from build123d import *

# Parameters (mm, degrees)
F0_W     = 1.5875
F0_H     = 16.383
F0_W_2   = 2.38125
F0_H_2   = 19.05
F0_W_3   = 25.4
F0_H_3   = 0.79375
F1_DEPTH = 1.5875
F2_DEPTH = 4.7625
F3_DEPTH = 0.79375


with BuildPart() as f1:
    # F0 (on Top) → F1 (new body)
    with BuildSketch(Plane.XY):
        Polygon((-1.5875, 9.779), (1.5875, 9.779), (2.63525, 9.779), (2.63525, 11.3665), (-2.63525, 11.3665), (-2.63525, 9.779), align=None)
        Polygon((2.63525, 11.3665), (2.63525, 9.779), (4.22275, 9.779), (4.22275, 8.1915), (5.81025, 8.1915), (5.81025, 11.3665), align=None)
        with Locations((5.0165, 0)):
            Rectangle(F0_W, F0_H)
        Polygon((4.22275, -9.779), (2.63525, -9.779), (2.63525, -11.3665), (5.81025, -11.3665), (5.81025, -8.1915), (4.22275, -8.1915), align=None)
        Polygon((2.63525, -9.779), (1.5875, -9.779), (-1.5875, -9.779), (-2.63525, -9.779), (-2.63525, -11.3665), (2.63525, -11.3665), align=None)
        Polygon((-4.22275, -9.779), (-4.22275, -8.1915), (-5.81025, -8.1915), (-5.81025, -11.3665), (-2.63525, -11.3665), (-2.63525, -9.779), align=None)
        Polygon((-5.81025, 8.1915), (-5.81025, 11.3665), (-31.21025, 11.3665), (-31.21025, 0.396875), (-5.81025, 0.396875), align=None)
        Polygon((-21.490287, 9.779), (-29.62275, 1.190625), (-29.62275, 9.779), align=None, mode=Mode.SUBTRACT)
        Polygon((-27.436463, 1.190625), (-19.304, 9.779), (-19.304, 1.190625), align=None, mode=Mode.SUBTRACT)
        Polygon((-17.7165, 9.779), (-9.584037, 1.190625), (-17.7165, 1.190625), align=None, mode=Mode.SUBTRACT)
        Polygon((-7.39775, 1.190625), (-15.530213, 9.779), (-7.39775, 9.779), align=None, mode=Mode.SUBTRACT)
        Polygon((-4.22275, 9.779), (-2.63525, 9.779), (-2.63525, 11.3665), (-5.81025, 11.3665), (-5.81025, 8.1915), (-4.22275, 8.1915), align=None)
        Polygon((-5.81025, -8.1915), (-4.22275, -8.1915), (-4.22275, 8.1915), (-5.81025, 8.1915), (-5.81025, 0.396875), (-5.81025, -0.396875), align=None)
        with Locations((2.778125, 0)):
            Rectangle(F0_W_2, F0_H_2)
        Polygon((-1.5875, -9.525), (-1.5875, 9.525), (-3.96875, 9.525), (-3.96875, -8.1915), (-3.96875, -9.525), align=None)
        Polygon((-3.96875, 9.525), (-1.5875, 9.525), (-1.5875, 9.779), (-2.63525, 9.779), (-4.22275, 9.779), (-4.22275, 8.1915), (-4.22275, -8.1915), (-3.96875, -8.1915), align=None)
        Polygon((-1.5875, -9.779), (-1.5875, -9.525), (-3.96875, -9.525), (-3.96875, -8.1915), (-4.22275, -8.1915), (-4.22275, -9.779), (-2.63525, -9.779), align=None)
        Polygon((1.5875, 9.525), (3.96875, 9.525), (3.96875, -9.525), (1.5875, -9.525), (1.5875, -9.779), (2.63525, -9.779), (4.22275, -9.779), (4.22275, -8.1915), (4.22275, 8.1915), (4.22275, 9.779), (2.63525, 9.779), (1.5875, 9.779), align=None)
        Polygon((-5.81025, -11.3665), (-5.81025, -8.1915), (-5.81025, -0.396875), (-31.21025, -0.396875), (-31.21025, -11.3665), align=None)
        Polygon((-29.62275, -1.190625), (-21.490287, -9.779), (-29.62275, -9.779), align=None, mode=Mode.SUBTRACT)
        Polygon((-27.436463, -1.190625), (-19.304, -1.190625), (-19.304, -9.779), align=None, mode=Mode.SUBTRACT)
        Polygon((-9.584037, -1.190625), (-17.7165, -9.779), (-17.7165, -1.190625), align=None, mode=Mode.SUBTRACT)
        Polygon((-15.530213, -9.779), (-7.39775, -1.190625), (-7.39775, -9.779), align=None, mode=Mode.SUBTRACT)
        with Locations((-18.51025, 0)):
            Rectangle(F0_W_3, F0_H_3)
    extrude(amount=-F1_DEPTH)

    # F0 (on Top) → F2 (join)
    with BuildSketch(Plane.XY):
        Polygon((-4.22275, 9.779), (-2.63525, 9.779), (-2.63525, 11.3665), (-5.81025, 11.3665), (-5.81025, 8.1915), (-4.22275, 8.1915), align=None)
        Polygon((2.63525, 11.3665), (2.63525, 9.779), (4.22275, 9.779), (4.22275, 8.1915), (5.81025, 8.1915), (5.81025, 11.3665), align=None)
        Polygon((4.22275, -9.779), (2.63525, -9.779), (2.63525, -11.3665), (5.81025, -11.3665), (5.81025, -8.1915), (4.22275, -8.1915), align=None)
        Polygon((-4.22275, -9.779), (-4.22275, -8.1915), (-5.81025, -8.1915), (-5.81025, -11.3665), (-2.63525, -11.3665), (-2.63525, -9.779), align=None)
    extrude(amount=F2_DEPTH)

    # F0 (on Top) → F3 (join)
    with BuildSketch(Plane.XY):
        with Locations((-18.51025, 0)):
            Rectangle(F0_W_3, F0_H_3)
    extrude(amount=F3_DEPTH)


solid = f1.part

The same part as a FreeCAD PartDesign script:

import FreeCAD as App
import Part
import Sketcher

V = App.Vector
Q = App.Units.Quantity

doc = App.newDocument("Part")
params = doc.addObject("Spreadsheet::Sheet", "Params")
for row, (alias, value) in enumerate([
    ("sketch1_height", "0.77 in"),
    ("sketch1_width", "0.125 in"),
    ("sketch1_height2", "0.895 in"),
    ("pad1_length", "0.0625 in"),
    ("sketch2_width", "0.0625 in"),
    ("pad2_length", "0.1875 in"),
    ("sketch3_width", "1 in"),
    ("sketch3_height", "0.03125 in"),
    ("pad3_length", "0.03125 in"),
], start=1):
    params.set(f"A{row}", alias)
    params.set(f"B{row}", "=" + value)
    params.setAlias(f"B{row}", alias)

body = doc.addObject("PartDesign::Body", "Body")

# Sketch on XY plane
sketch1 = doc.addObject("Sketcher::SketchObject", "Sketch")
body.addObject(sketch1)
sketch1.AttachmentSupport = (doc.XY_Plane, [""])
sketch1.MapMode = "FlatFace"
sketch1.addGeometry([
    Part.LineSegment(V(5.81025, -11.3665, 0), V(5.81025, 11.3665, 0)),  # 0
    Part.LineSegment(V(5.81025, 11.3665, 0), V(-31.21025, 11.3665, 0)),  # 1
    Part.LineSegment(V(-31.21025, 11.3665, 0), V(-31.21025, -11.3665, 0)),  # 2
    Part.LineSegment(V(-31.21025, -11.3665, 0), V(5.81025, -11.3665, 0)),  # 3
    Part.LineSegment(V(-29.62275, -9.779, 0), V(-29.62275, -1.190625, 0)),  # 4
    Part.LineSegment(V(-29.62275, -1.190625, 0), V(-21.490287, -9.779, 0)),  # 5
    Part.LineSegment(V(-21.490287, -9.779, 0), V(-29.62275, -9.779, 0)),  # 6
    Part.LineSegment(V(-19.304, -9.779, 0), V(-27.436463, -1.190625, 0)),  # 7
    Part.LineSegment(V(-27.436463, -1.190625, 0), V(-19.304, -1.190625, 0)),  # 8
    Part.LineSegment(V(-19.304, -1.190625, 0), V(-19.304, -9.779, 0)),  # 9
    Part.LineSegment(V(-17.7165, -1.190625, 0), V(-9.584037, -1.190625, 0)),  # 10
    Part.LineSegment(V(-9.584037, -1.190625, 0), V(-17.7165, -9.779, 0)),  # 11
    Part.LineSegment(V(-17.7165, -9.779, 0), V(-17.7165, -1.190625, 0)),  # 12
    Part.LineSegment(V(-7.39775, -9.779, 0), V(-15.530213, -9.779, 0)),  # 13
    Part.LineSegment(V(-15.530213, -9.779, 0), V(-7.39775, -1.190625, 0)),  # 14
    Part.LineSegment(V(-7.39775, -1.190625, 0), V(-7.39775, -9.779, 0)),  # 15
    Part.LineSegment(V(-29.62275, 9.779, 0), V(-21.490287, 9.779, 0)),  # 16
    Part.LineSegment(V(-21.490287, 9.779, 0), V(-29.62275, 1.190625, 0)),  # 17
    Part.LineSegment(V(-29.62275, 1.190625, 0), V(-29.62275, 9.779, 0)),  # 18
    Part.LineSegment(V(-19.304, 1.190625, 0), V(-27.436463, 1.190625, 0)),  # 19
    Part.LineSegment(V(-27.436463, 1.190625, 0), V(-19.304, 9.779, 0)),  # 20
    Part.LineSegment(V(-19.304, 9.779, 0), V(-19.304, 1.190625, 0)),  # 21
    Part.LineSegment(V(1.5875, -9.779, 0), V(-1.5875, -9.779, 0)),  # 22
    Part.LineSegment(V(-1.5875, -9.779, 0), V(-1.5875, 9.779, 0)),  # 23
    Part.LineSegment(V(-1.5875, 9.779, 0), V(1.5875, 9.779, 0)),  # 24
    Part.LineSegment(V(1.5875, 9.779, 0), V(1.5875, -9.779, 0)),  # 25
    Part.LineSegment(V(-17.7165, 1.190625, 0), V(-17.7165, 9.779, 0)),  # 26
    Part.LineSegment(V(-17.7165, 9.779, 0), V(-9.584037, 1.190625, 0)),  # 27
    Part.LineSegment(V(-9.584037, 1.190625, 0), V(-17.7165, 1.190625, 0)),  # 28
    Part.LineSegment(V(-7.39775, 1.190625, 0), V(-15.530213, 9.779, 0)),  # 29
    Part.LineSegment(V(-15.530213, 9.779, 0), V(-7.39775, 9.779, 0)),  # 30
    Part.LineSegment(V(-7.39775, 9.779, 0), V(-7.39775, 1.190625, 0)),  # 31
], False)
sketch1.addConstraint([
    Sketcher.Constraint("Coincident", 0, 2, 1, 1),
    Sketcher.Constraint("Coincident", 1, 2, 2, 1),
    Sketcher.Constraint("Coincident", 2, 2, 3, 1),
    Sketcher.Constraint("Coincident", 3, 2, 0, 1),
    Sketcher.Constraint("Coincident", 4, 2, 5, 1),
    Sketcher.Constraint("Coincident", 5, 2, 6, 1),
    Sketcher.Constraint("Coincident", 6, 2, 4, 1),
    Sketcher.Constraint("Coincident", 7, 2, 8, 1),
    Sketcher.Constraint("Coincident", 8, 2, 9, 1),
    Sketcher.Constraint("Coincident", 9, 2, 7, 1),
    Sketcher.Constraint("Coincident", 10, 2, 11, 1),
    Sketcher.Constraint("Coincident", 11, 2, 12, 1),
    Sketcher.Constraint("Coincident", 12, 2, 10, 1),
    Sketcher.Constraint("Coincident", 13, 2, 14, 1),
    Sketcher.Constraint("Coincident", 14, 2, 15, 1),
    Sketcher.Constraint("Coincident", 15, 2, 13, 1),
    Sketcher.Constraint("Coincident", 16, 2, 17, 1),
    Sketcher.Constraint("Coincident", 17, 2, 18, 1),
    Sketcher.Constraint("Coincident", 18, 2, 16, 1),
    Sketcher.Constraint("Coincident", 19, 2, 20, 1),
    Sketcher.Constraint("Coincident", 20, 2, 21, 1),
    Sketcher.Constraint("Coincident", 21, 2, 19, 1),
    Sketcher.Constraint("Coincident", 22, 2, 23, 1),
    Sketcher.Constraint("Coincident", 23, 2, 24, 1),
    Sketcher.Constraint("Coincident", 24, 2, 25, 1),
    Sketcher.Constraint("Coincident", 25, 2, 22, 1),
    Sketcher.Constraint("Coincident", 26, 2, 27, 1),
    Sketcher.Constraint("Coincident", 27, 2, 28, 1),
    Sketcher.Constraint("Coincident", 28, 2, 26, 1),
    Sketcher.Constraint("Coincident", 29, 2, 30, 1),
    Sketcher.Constraint("Coincident", 30, 2, 31, 1),
    Sketcher.Constraint("Coincident", 31, 2, 29, 1),
    Sketcher.Constraint("Vertical", 0),
    Sketcher.Constraint("Horizontal", 1),
    Sketcher.Constraint("Vertical", 2),
    Sketcher.Constraint("Horizontal", 3),
    Sketcher.Constraint("Vertical", 4),
    Sketcher.Constraint("Horizontal", 6),
    Sketcher.Constraint("Horizontal", 8),
    Sketcher.Constraint("Vertical", 9),
    Sketcher.Constraint("Horizontal", 10),
    Sketcher.Constraint("Vertical", 12),
    Sketcher.Constraint("Horizontal", 13),
    Sketcher.Constraint("Vertical", 15),
    Sketcher.Constraint("Horizontal", 16),
    Sketcher.Constraint("Vertical", 18),
    Sketcher.Constraint("Horizontal", 19),
    Sketcher.Constraint("Vertical", 21),
    Sketcher.Constraint("Horizontal", 22),
    Sketcher.Constraint("Vertical", 23),
    Sketcher.Constraint("Horizontal", 24),
    Sketcher.Constraint("Vertical", 25),
    Sketcher.Constraint("Vertical", 26),
    Sketcher.Constraint("Horizontal", 28),
    Sketcher.Constraint("Horizontal", 30),
    Sketcher.Constraint("Vertical", 31),
    Sketcher.Constraint("Symmetric", 22, 2, 24, 2, -1, 1),
    Sketcher.Constraint("Symmetric", 5, 2, 16, 2, -1),
    Sketcher.Constraint("Symmetric", 4, 2, 17, 2, -1),
    Sketcher.Constraint("Symmetric", 7, 2, 19, 2, -1),
    Sketcher.Constraint("Symmetric", 9, 2, 20, 2, -1),
    Sketcher.Constraint("Symmetric", 11, 2, 26, 2, -1),
    Sketcher.Constraint("Symmetric", 10, 2, 27, 2, -1),
    Sketcher.Constraint("Symmetric", 13, 2, 29, 2, -1),
    Sketcher.Constraint("Symmetric", 14, 2, 31, 2, -1),
    Sketcher.Constraint("Parallel", 5, 7),
    Sketcher.Constraint("Parallel", 11, 14),
    Sketcher.Constraint("Parallel", 14, 17),
    Sketcher.Constraint("Horizontal", 4, 2, 7, 2),
    Sketcher.Constraint("Horizontal", 6, 2, 9, 2),
    Sketcher.Constraint("Horizontal", 8, 2, 10, 2),
    Sketcher.Constraint("Horizontal", 9, 2, 11, 2),
    Sketcher.Constraint("Horizontal", 11, 2, 13, 2),
    Sketcher.Constraint("Horizontal", 12, 2, 14, 2),
    Sketcher.Constraint("Horizontal", 15, 2, 22, 2),
    Sketcher.Constraint("DistanceY", 23, 1, 23, 2, Q("0.77 in")),
    Sketcher.Constraint("DistanceX", 22, 2, 22, 1, Q("0.125 in")),
    Sketcher.Constraint("DistanceY", 0, 1, 0, 2, Q("0.895 in")),
    Sketcher.Constraint("DistanceX", 8, 2, -1, 1, Q("0.76 in")),
    Sketcher.Constraint("DistanceX", 1, 2, 1, 1, Q("1.4575 in")),
    Sketcher.Constraint("DistanceY", 4, 2, -1, 1, Q("0.046875 in")),
    Sketcher.Constraint("DistanceX", 2, 2, 4, 2, Q("0.0625 in")),
    Sketcher.Constraint("DistanceY", 2, 2, 5, 2, Q("0.0625 in")),
    Sketcher.Constraint("DistanceX", 4, 2, 8, 2, Q("0.40625 in")),
    Sketcher.Constraint("DistanceX", 5, 2, 10, 2, Q("0.46875 in")),
    Sketcher.Constraint("DistanceX", 12, 2, 14, 2, Q("0.40625 in")),
    Sketcher.Constraint("DistanceX", 6, 2, 6, 1, 8.132463),
])
sketch1.setExpression("Constraints[75]", "Params.sketch1_height")
sketch1.setExpression("Constraints[76]", "Params.sketch1_width")
sketch1.setExpression("Constraints[77]", "Params.sketch1_height2")
pad1 = doc.addObject("PartDesign::Pad", "Pad")
body.addObject(pad1)
pad1.Profile = sketch1
pad1.setExpression("Length", "Params.pad1_length")
pad1.Reversed = True

# Sketch on XY plane
sketch2 = doc.addObject("Sketcher::SketchObject", "Sketch001")
body.addObject(sketch2)
sketch2.AttachmentSupport = (doc.XY_Plane, [""])
sketch2.MapMode = "FlatFace"
sketch2.addGeometry([
    Part.LineSegment(V(-4.22275, 9.779, 0), V(-2.63525, 9.779, 0)),  # 0
    Part.LineSegment(V(-2.63525, 9.779, 0), V(-2.63525, 11.3665, 0)),  # 1
    Part.LineSegment(V(-2.63525, 11.3665, 0), V(-5.81025, 11.3665, 0)),  # 2
    Part.LineSegment(V(-5.81025, 11.3665, 0), V(-5.81025, 8.1915, 0)),  # 3
    Part.LineSegment(V(-5.81025, 8.1915, 0), V(-4.22275, 8.1915, 0)),  # 4
    Part.LineSegment(V(-4.22275, 8.1915, 0), V(-4.22275, 9.779, 0)),  # 5
    Part.LineSegment(V(2.63525, 11.3665, 0), V(2.63525, 9.779, 0)),  # 6
    Part.LineSegment(V(2.63525, 9.779, 0), V(4.22275, 9.779, 0)),  # 7
    Part.LineSegment(V(4.22275, 9.779, 0), V(4.22275, 8.1915, 0)),  # 8
    Part.LineSegment(V(4.22275, 8.1915, 0), V(5.81025, 8.1915, 0)),  # 9
    Part.LineSegment(V(5.81025, 8.1915, 0), V(5.81025, 11.3665, 0)),  # 10
    Part.LineSegment(V(5.81025, 11.3665, 0), V(2.63525, 11.3665, 0)),  # 11
    Part.LineSegment(V(4.22275, -9.779, 0), V(2.63525, -9.779, 0)),  # 12
    Part.LineSegment(V(2.63525, -9.779, 0), V(2.63525, -11.3665, 0)),  # 13
    Part.LineSegment(V(2.63525, -11.3665, 0), V(5.81025, -11.3665, 0)),  # 14
    Part.LineSegment(V(5.81025, -11.3665, 0), V(5.81025, -8.1915, 0)),  # 15
    Part.LineSegment(V(5.81025, -8.1915, 0), V(4.22275, -8.1915, 0)),  # 16
    Part.LineSegment(V(4.22275, -8.1915, 0), V(4.22275, -9.779, 0)),  # 17
    Part.LineSegment(V(-4.22275, -9.779, 0), V(-4.22275, -8.1915, 0)),  # 18
    Part.LineSegment(V(-4.22275, -8.1915, 0), V(-5.81025, -8.1915, 0)),  # 19
    Part.LineSegment(V(-5.81025, -8.1915, 0), V(-5.81025, -11.3665, 0)),  # 20
    Part.LineSegment(V(-5.81025, -11.3665, 0), V(-2.63525, -11.3665, 0)),  # 21
    Part.LineSegment(V(-2.63525, -11.3665, 0), V(-2.63525, -9.779, 0)),  # 22
    Part.LineSegment(V(-2.63525, -9.779, 0), V(-4.22275, -9.779, 0)),  # 23
], False)
sketch2.addConstraint([
    Sketcher.Constraint("Coincident", 0, 2, 1, 1),
    Sketcher.Constraint("Coincident", 1, 2, 2, 1),
    Sketcher.Constraint("Coincident", 2, 2, 3, 1),
    Sketcher.Constraint("Coincident", 3, 2, 4, 1),
    Sketcher.Constraint("Coincident", 4, 2, 5, 1),
    Sketcher.Constraint("Coincident", 5, 2, 0, 1),
    Sketcher.Constraint("Coincident", 6, 2, 7, 1),
    Sketcher.Constraint("Coincident", 7, 2, 8, 1),
    Sketcher.Constraint("Coincident", 8, 2, 9, 1),
    Sketcher.Constraint("Coincident", 9, 2, 10, 1),
    Sketcher.Constraint("Coincident", 10, 2, 11, 1),
    Sketcher.Constraint("Coincident", 11, 2, 6, 1),
    Sketcher.Constraint("Coincident", 12, 2, 13, 1),
    Sketcher.Constraint("Coincident", 13, 2, 14, 1),
    Sketcher.Constraint("Coincident", 14, 2, 15, 1),
    Sketcher.Constraint("Coincident", 15, 2, 16, 1),
    Sketcher.Constraint("Coincident", 16, 2, 17, 1),
    Sketcher.Constraint("Coincident", 17, 2, 12, 1),
    Sketcher.Constraint("Coincident", 18, 2, 19, 1),
    Sketcher.Constraint("Coincident", 19, 2, 20, 1),
    Sketcher.Constraint("Coincident", 20, 2, 21, 1),
    Sketcher.Constraint("Coincident", 21, 2, 22, 1),
    Sketcher.Constraint("Coincident", 22, 2, 23, 1),
    Sketcher.Constraint("Coincident", 23, 2, 18, 1),
    Sketcher.Constraint("Horizontal", 0),
    Sketcher.Constraint("Vertical", 1),
    Sketcher.Constraint("Horizontal", 2),
    Sketcher.Constraint("Vertical", 3),
    Sketcher.Constraint("Horizontal", 4),
    Sketcher.Constraint("Vertical", 5),
    Sketcher.Constraint("Vertical", 6),
    Sketcher.Constraint("Horizontal", 7),
    Sketcher.Constraint("Vertical", 8),
    Sketcher.Constraint("Horizontal", 9),
    Sketcher.Constraint("Vertical", 10),
    Sketcher.Constraint("Horizontal", 11),
    Sketcher.Constraint("Horizontal", 12),
    Sketcher.Constraint("Vertical", 13),
    Sketcher.Constraint("Horizontal", 14),
    Sketcher.Constraint("Vertical", 15),
    Sketcher.Constraint("Horizontal", 16),
    Sketcher.Constraint("Vertical", 17),
    Sketcher.Constraint("Vertical", 18),
    Sketcher.Constraint("Horizontal", 19),
    Sketcher.Constraint("Vertical", 20),
    Sketcher.Constraint("Horizontal", 21),
    Sketcher.Constraint("Vertical", 22),
    Sketcher.Constraint("Horizontal", 23),
    Sketcher.Constraint("Symmetric", 0, 2, 12, 2, -1, 1),
    Sketcher.Constraint("Symmetric", 2, 2, 14, 2, -1, 1),
    Sketcher.Constraint("Symmetric", 4, 2, 16, 2, -1, 1),
    Sketcher.Constraint("Symmetric", 8, 2, 18, 2, -1, 1),
    Sketcher.Constraint("Symmetric", 10, 2, 20, 2, -1, 1),
    Sketcher.Constraint("Symmetric", 6, 2, 22, 2, -1, 1),
    Sketcher.Constraint("Symmetric", 0, 2, 6, 2, -2),
    Sketcher.Constraint("Symmetric", 4, 2, 8, 2, -2),
    Sketcher.Constraint("Symmetric", 2, 2, 10, 2, -2),
    Sketcher.Constraint("Equal", 0, 4),
    Sketcher.Constraint("Equal", 23, 1),
    Sketcher.Constraint("Equal", 21, 3),
    Sketcher.Constraint("DistanceX", 0, 1, 0, 2, Q("0.0625 in")),
    Sketcher.Constraint("DistanceX", 5, 2, 6, 2, Q("0.27 in")),
    Sketcher.Constraint("DistanceY", 12, 2, 6, 2, Q("0.77 in")),
])
sketch2.setExpression("Constraints[60]", "Params.sketch2_width")
pad2 = doc.addObject("PartDesign::Pad", "Pad001")
body.addObject(pad2)
pad2.Profile = sketch2
pad2.setExpression("Length", "Params.pad2_length")

# Sketch on XY plane
sketch3 = doc.addObject("Sketcher::SketchObject", "Sketch002")
body.addObject(sketch3)
sketch3.AttachmentSupport = (doc.XY_Plane, [""])
sketch3.MapMode = "FlatFace"
sketch3.addGeometry([
    Part.LineSegment(V(-31.21025, 0.396875, 0), V(-31.21025, -0.396875, 0)),
    Part.LineSegment(V(-31.21025, -0.396875, 0), V(-5.81025, -0.396875, 0)),
    Part.LineSegment(V(-5.81025, -0.396875, 0), V(-5.81025, 0.396875, 0)),
    Part.LineSegment(V(-5.81025, 0.396875, 0), V(-31.21025, 0.396875, 0)),
], False)
sketch3.addConstraint([
    Sketcher.Constraint("Coincident", 0, 2, 1, 1),
    Sketcher.Constraint("Coincident", 1, 2, 2, 1),
    Sketcher.Constraint("Coincident", 2, 2, 3, 1),
    Sketcher.Constraint("Coincident", 3, 2, 0, 1),
    Sketcher.Constraint("Vertical", 0),
    Sketcher.Constraint("Horizontal", 1),
    Sketcher.Constraint("Vertical", 2),
    Sketcher.Constraint("Horizontal", 3),
    Sketcher.Constraint("DistanceX", 1, 1, 1, 2, Q("1 in")),
    Sketcher.Constraint("DistanceY", 0, 2, 0, 1, Q("0.03125 in")),
    Sketcher.Constraint("DistanceY", 0, 2, -1, 1, Q("0.015625 in")),
    Sketcher.Constraint("DistanceX", 0, 2, -1, 1, 31.21025),
])
sketch3.setExpression("Constraints[8]", "Params.sketch3_width")
sketch3.setExpression("Constraints[9]", "Params.sketch3_height")
pad3 = doc.addObject("PartDesign::Pad", "Pad002")
body.addObject(pad3)
pad3.Profile = sketch3
pad3.setExpression("Length", "Params.pad3_length")

doc.recompute()
